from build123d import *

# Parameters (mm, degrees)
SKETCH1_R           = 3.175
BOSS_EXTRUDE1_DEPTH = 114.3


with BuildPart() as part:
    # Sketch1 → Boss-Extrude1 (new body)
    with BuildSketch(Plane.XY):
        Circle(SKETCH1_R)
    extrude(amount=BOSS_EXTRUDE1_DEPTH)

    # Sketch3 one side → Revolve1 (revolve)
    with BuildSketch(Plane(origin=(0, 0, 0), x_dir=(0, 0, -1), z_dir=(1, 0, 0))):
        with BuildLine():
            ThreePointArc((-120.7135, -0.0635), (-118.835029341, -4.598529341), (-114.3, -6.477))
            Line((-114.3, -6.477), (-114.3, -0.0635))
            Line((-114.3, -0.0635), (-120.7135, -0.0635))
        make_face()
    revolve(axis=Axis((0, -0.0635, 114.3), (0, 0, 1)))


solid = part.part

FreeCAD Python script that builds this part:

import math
import FreeCAD as App
import Part
import Sketcher
Q = App.Units.Quantity

doc = App.newDocument("Part")
params = doc.addObject("Spreadsheet::Sheet", "Params")
for row, (alias, value) in enumerate([
    ("sketch1_diameter", "0.25 in"),
    ("pad1_length", "4.5 in"),
    ("revolution_angle", "360 deg"),
], start=1):
    params.set(f"A{row}", alias)
    params.set(f"B{row}", "=" + value)
    params.setAlias(f"B{row}", alias)

body = doc.addObject("PartDesign::Body", "Body")

# Sketch on XY plane
sketch1 = doc.addObject("Sketcher::SketchObject", "Sketch")
body.addObject(sketch1)
sketch1.AttachmentSupport = (doc.XY_Plane, [""])
sketch1.MapMode = "FlatFace"
sketch1.addGeometry(Part.Circle(App.Vector(0, 0, 0), App.Vector(0, 0, 1), 3.175), False)
sketch1.addConstraint([
    Sketcher.Constraint("Coincident", 0, 3, -1, 1),
    Sketcher.Constraint("Diameter", 0, Q("0.25 in")),
])
sketch1.setExpression("Constraints[1]", "Params.sketch1_diameter")
pad1 = doc.addObject("PartDesign::Pad", "Pad")
body.addObject(pad1)
pad1.Profile = sketch1
pad1.setExpression("Length", "Params.pad1_length")

# Sketch on YZ plane
sketch2 = doc.addObject("Sketcher::SketchObject", "Sketch001")
body.addObject(sketch2)
sketch2.AttachmentSupport = (doc.YZ_Plane, [""])
sketch2.MapMode = "FlatFace"
sketch2.addGeometry([
    Part.ArcOfCircle(Part.Circle(App.Vector(-0.0635, 114.3, 0), App.Vector(0, 0, 1), 6.4135), math.radians(90), math.radians(180)),
    Part.LineSegment(App.Vector(-6.477, 114.3, 0), App.Vector(-0.0635, 114.3, 0)),
    Part.LineSegment(App.Vector(-0.0635, 114.3, 0), App.Vector(-0.0635, 120.7135, 0)),
], False)
sketch2.addGeometry(Part.LineSegment(App.Vector(-0.0635, 114.3, 0), App.Vector(-0.0635, 120.7135, 0)), True)  # axis
sketch2.addConstraint([
    Sketcher.Constraint("Coincident", 0, 2, 1, 1),
    Sketcher.Constraint("Coincident", 1, 2, 2, 1),
    Sketcher.Constraint("Coincident", 2, 2, 0, 1),
    Sketcher.Constraint("Horizontal", 1),
    Sketcher.Constraint("Vertical", 2),
    Sketcher.Constraint("Vertical", 3),
    Sketcher.Constraint("Coincident", 1, 2, 0, 3),
    Sketcher.Constraint("Coincident", 3, 1, 0, 3),
    Sketcher.Constraint("Equal", 2, 3),
    Sketcher.Constraint("DistanceY", -1, 1, 0, 3, Q("4.5 in")),
    Sketcher.Constraint("Radius", 0, Q("0.2525 in")),
    Sketcher.Constraint("DistanceX", 0, 2, -1, 1, Q("0.255 in")),
])
revolution = doc.addObject("PartDesign::Revolution", "Revolution")
body.addObject(revolution)
revolution.Profile = sketch2
revolution.ReferenceAxis = (sketch2, ["Axis0"])
revolution.setExpression("Angle", "Params.revolution_angle")

doc.recompute()
